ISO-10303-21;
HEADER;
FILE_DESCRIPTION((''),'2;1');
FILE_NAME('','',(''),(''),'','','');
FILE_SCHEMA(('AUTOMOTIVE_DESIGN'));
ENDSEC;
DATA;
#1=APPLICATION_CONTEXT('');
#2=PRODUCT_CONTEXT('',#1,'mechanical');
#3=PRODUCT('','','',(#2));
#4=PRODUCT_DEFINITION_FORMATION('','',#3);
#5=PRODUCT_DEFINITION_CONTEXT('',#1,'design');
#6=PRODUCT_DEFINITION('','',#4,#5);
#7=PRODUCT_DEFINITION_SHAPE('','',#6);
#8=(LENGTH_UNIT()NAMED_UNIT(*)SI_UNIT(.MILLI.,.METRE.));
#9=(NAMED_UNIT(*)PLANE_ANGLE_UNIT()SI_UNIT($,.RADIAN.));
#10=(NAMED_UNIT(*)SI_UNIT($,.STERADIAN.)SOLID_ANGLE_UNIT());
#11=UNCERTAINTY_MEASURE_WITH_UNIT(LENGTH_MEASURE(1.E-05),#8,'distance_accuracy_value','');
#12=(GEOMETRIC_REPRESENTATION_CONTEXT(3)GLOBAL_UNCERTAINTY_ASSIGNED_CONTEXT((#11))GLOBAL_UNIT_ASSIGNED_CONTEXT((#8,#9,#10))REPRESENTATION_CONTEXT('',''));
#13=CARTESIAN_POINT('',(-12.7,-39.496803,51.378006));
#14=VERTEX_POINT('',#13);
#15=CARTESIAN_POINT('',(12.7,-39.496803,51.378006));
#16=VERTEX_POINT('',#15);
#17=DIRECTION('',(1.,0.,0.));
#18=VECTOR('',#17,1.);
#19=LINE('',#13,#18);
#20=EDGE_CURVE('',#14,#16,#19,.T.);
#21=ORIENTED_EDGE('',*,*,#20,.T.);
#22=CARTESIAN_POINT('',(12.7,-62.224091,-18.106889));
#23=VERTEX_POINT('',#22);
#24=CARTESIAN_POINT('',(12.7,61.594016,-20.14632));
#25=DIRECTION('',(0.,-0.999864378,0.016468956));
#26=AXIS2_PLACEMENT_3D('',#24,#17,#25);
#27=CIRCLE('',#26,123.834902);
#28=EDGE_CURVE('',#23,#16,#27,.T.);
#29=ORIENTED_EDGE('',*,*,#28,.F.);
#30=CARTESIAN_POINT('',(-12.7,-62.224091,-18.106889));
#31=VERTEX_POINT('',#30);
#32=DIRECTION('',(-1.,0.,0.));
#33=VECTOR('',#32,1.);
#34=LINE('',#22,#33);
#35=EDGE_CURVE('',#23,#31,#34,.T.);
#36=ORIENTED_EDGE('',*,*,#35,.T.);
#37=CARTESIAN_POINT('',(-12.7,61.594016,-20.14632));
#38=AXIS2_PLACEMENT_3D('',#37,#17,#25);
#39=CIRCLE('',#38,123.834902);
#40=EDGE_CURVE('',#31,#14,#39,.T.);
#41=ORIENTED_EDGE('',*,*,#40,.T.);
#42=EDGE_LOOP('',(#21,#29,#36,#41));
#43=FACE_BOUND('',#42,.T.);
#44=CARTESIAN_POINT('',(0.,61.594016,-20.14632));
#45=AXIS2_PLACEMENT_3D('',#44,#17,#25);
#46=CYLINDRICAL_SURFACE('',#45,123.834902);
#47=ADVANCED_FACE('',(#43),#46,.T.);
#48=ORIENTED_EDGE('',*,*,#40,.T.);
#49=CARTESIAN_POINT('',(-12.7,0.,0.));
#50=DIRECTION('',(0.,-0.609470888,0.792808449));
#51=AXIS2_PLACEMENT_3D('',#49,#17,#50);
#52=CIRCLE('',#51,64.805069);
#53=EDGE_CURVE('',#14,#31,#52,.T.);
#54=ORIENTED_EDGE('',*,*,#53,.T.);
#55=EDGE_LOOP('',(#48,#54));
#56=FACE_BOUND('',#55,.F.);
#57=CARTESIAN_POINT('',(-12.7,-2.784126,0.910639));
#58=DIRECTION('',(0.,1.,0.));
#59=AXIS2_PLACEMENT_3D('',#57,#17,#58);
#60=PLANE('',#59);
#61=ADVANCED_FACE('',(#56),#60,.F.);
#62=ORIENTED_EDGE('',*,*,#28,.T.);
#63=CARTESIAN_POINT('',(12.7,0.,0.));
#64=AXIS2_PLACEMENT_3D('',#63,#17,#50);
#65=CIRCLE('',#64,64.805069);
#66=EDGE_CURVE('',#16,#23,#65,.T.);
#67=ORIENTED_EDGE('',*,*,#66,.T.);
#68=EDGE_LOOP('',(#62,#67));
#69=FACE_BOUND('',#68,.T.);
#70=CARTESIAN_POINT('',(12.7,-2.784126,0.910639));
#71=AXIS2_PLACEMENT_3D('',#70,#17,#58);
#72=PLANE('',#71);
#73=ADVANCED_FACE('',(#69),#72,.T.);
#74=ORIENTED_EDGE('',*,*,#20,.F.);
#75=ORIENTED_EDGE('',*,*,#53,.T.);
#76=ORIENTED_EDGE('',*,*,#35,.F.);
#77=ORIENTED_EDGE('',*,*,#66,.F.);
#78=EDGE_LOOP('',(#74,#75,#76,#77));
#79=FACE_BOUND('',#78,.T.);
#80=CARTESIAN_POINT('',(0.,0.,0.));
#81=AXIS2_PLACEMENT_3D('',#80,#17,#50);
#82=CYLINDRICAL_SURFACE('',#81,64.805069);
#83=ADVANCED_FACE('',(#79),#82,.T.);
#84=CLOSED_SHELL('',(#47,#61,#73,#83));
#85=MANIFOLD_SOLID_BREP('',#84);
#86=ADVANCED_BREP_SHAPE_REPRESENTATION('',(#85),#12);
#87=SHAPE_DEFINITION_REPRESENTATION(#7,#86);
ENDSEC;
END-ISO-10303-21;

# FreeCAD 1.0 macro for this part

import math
import FreeCAD as App
import Part
import Sketcher
Q = App.Units.Quantity

doc = App.newDocument("Part")
body = doc.addObject("PartDesign::Body", "Body")

sketch1 = body.newObject("Sketcher::SketchObject", "Sketch")
sketch1.AttachmentSupport = (doc.getObject("YZ_Plane"), [""])
sketch1.MapMode = "FlatFace"
sketch1.addGeometry([
    Part.ArcOfCircle(Part.Circle(App.Vector(62, -20, 0), App.Vector(0, 0, 1), 124), math.radians(179), math.radians(505)),
    Part.ArcOfCircle(Part.Circle(App.Vector(0, 0, 0), App.Vector(0, 0, 1), 65), math.radians(128), math.radians(196)),
], False)
sketch1.addConstraint([
    Sketcher.Constraint("Coincident", 0, 1, 1, 2),
    Sketcher.Constraint("Coincident", 1, 1, 0, 2),
    Sketcher.Constraint("Coincident", 1, 3, -1, 1),
    Sketcher.Constraint("Radius", 0, Q("123.834902 mm")),
    Sketcher.Constraint("Radius", 1, Q("64.805069 mm")),
    Sketcher.Constraint("DistanceY", 0, 3, -1, 1, Q("20.14632 mm")),
    Sketcher.Constraint("DistanceX", 0, 1, -1, 1, Q("62.224091 mm")),
])
pad1 = body.newObject("PartDesign::Pad", "Pad")
pad1.Profile = sketch1
pad1.Length = Q("1 in")
pad1.Midplane = True

doc.recompute()
